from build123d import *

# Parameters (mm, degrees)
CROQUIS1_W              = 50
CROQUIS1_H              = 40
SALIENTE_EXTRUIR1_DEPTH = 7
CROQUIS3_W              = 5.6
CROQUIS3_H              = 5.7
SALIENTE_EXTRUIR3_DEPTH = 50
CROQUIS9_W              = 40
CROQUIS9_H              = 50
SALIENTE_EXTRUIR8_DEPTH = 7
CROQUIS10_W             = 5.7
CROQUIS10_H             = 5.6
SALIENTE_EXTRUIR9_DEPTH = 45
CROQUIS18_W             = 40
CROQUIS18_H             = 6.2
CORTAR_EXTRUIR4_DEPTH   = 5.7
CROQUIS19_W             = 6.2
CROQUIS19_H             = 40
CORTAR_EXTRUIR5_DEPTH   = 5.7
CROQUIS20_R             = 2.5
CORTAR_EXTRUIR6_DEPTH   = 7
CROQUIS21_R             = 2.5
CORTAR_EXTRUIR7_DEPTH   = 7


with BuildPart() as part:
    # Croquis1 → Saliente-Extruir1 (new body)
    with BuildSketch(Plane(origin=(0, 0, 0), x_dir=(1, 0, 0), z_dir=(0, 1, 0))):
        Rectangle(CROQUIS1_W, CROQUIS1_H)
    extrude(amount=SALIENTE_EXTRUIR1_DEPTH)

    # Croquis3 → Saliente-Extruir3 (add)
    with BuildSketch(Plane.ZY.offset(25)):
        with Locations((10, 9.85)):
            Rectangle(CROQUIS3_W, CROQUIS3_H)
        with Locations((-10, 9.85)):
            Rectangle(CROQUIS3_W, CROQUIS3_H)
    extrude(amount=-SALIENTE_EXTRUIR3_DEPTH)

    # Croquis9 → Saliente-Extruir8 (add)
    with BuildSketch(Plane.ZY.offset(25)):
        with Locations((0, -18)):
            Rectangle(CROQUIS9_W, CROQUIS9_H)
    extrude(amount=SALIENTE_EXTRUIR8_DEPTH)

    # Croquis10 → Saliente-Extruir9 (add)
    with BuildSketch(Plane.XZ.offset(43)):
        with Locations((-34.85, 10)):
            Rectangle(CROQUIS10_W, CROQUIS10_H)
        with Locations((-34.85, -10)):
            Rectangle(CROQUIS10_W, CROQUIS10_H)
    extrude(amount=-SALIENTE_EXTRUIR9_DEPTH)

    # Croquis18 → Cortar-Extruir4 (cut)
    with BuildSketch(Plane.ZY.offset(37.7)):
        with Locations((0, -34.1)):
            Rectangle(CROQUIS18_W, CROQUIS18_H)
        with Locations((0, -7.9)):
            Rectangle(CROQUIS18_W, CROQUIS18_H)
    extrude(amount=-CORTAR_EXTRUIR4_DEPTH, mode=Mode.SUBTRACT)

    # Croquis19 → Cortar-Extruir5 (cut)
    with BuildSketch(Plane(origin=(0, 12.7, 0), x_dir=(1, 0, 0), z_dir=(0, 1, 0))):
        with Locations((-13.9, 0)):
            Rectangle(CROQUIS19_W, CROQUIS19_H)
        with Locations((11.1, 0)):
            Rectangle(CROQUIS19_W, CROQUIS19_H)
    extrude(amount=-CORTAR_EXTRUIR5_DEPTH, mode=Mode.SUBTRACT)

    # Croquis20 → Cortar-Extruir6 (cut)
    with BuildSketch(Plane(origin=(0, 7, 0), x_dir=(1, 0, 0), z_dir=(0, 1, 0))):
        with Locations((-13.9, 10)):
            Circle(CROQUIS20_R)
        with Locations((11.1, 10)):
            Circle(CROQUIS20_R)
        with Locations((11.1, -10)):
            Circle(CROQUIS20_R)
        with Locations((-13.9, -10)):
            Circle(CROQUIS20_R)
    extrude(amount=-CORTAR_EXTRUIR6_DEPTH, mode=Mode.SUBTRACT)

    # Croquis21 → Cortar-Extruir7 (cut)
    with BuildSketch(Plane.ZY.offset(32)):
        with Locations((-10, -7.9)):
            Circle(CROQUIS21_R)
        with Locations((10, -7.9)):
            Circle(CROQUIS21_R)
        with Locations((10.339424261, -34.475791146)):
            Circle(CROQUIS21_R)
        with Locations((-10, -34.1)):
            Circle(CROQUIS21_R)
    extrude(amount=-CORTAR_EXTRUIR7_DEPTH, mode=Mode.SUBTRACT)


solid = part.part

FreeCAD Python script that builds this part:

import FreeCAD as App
import Part
import Sketcher

V = App.Vector
Q = App.Units.Quantity

doc = App.newDocument("Part")
body = doc.addObject("PartDesign::Body", "Body")

sketch1 = body.newObject("Sketcher::SketchObject", "Sketch")
sketch1.AttachmentSupport = (doc.getObject("XZ_Plane"), [""])
sketch1.MapMode = "FlatFace"
sketch1.addGeometry([
    Part.LineSegment(V(-25, -20, 0), V(-25, 20, 0)),
    Part.LineSegment(V(-25, 20, 0), V(25, 20, 0)),
    Part.LineSegment(V(25, 20, 0), V(25, -20, 0)),
    Part.LineSegment(V(25, -20, 0), V(-25, -20, 0)),
], False)
sketch1.addConstraint([
    Sketcher.Constraint("Coincident", 0, 2, 1, 1),
    Sketcher.Constraint("Coincident", 1, 2, 2, 1),
    Sketcher.Constraint("Coincident", 2, 2, 3, 1),
    Sketcher.Constraint("Coincident", 3, 2, 0, 1),
    Sketcher.Constraint("Vertical", 0),
    Sketcher.Constraint("Horizontal", 1),
    Sketcher.Constraint("Vertical", 2),
    Sketcher.Constraint("Horizontal", 3),
    Sketcher.Constraint("Symmetric", 0, 2, 2, 2, -1, 1),
    Sketcher.Constraint("DistanceX", 1, 1, 1, 2, Q("50 mm")),
    Sketcher.Constraint("DistanceY", 0, 1, 0, 2, Q("40 mm")),
])
pad1 = body.newObject("PartDesign::Pad", "Pad")
pad1.Profile = sketch1
pad1.Length = 7
pad1.Reversed = True

sketch2 = body.newObject("Sketcher::SketchObject", "Sketch001")
sketch2.AttachmentSupport = (doc.getObject("YZ_Plane"), [""])
sketch2.MapMode = "FlatFace"
sketch2.AttachmentOffset = App.Placement(V(0, 0, -25), App.Rotation())
sketch2.addGeometry([
    Part.LineSegment(V(13, 7, 0), V(7, 7, 0)),
    Part.LineSegment(V(7, 7, 0), V(7, 13, 0)),
    Part.LineSegment(V(7, 13, 0), V(13, 13, 0)),
    Part.LineSegment(V(13, 13, 0), V(13, 7, 0)),
    Part.LineSegment(V(13, -13, 0), V(7, -13, 0)),
    Part.LineSegment(V(7, -13, 0), V(7, -7, 0)),
    Part.LineSegment(V(7, -7, 0), V(13, -7, 0)),
    Part.LineSegment(V(13, -7, 0), V(13, -13, 0)),
], False)
sketch2.addConstraint([
    Sketcher.Constraint("Coincident", 0, 2, 1, 1),
    Sketcher.Constraint("Coincident", 1, 2, 2, 1),
    Sketcher.Constraint("Coincident", 2, 2, 3, 1),
    Sketcher.Constraint("Coincident", 3, 2, 0, 1),
    Sketcher.Constraint("Coincident", 4, 2, 5, 1),
    Sketcher.Constraint("Coincident", 5, 2, 6, 1),
    Sketcher.Constraint("Coincident", 6, 2, 7, 1),
    Sketcher.Constraint("Coincident", 7, 2, 4, 1),
    Sketcher.Constraint("Horizontal", 0),
    Sketcher.Constraint("Vertical", 1),
    Sketcher.Constraint("Horizontal", 2),
    Sketcher.Constraint("Vertical", 3),
    Sketcher.Constraint("Horizontal", 4),
    Sketcher.Constraint("Vertical", 5),
    Sketcher.Constraint("Horizontal", 6),
    Sketcher.Constraint("Vertical", 7),
    Sketcher.Constraint("Symmetric", 1, 2, 4, 2, -1),
    Sketcher.Constraint("Symmetric", 3, 2, 6, 2, -1),
    Sketcher.Constraint("DistanceX", 0, 2, 0, 1, Q("5.7 mm")),
    Sketcher.Constraint("DistanceY", 1, 1, 1, 2, Q("5.6 mm")),
    Sketcher.Constraint("DistanceX", -1, 1, 0, 2, Q("7 mm")),
    Sketcher.Constraint("DistanceY", 4, 2, 0, 2, Q("20 mm")),
])
pad2 = body.newObject("PartDesign::Pad", "Pad001")
pad2.Profile = sketch2
pad2.Length = 50

sketch3 = body.newObject("Sketcher::SketchObject", "Sketch002")
sketch3.AttachmentSupport = (doc.getObject("YZ_Plane"), [""])
sketch3.MapMode = "FlatFace"
sketch3.AttachmentOffset = App.Placement(V(0, 0, -25), App.Rotation())
sketch3.addGeometry([
    Part.LineSegment(V(7, -20, 0), V(-43, -20, 0)),
    Part.LineSegment(V(-43, -20, 0), V(-43, 20, 0)),
    Part.LineSegment(V(-43, 20, 0), V(7, 20, 0)),
    Part.LineSegment(V(7, 20, 0), V(7, -20, 0)),
], False)
sketch3.addConstraint([
    Sketcher.Constraint("Coincident", 0, 2, 1, 1),
    Sketcher.Constraint("Coincident", 1, 2, 2, 1),
    Sketcher.Constraint("Coincident", 2, 2, 3, 1),
    Sketcher.Constraint("Coincident", 3, 2, 0, 1),
    Sketcher.Constraint("Horizontal", 0),
    Sketcher.Constraint("Vertical", 1),
    Sketcher.Constraint("Horizontal", 2),
    Sketcher.Constraint("Vertical", 3),
    Sketcher.Constraint("DistanceX", 0, 2, 0, 1, Q("50 mm")),
    Sketcher.Constraint("DistanceY", 1, 1, 1, 2, Q("40 mm")),
    Sketcher.Constraint("DistanceX", 0, 2, -1, 1, Q("43 mm")),
    Sketcher.Constraint("DistanceY", 0, 2, -1, 1, Q("20 mm")),
])
pad3 = body.newObject("PartDesign::Pad", "Pad002")
pad3.Profile = sketch3
pad3.Length = 7
pad3.Reversed = True

sketch4 = body.newObject("Sketcher::SketchObject", "Sketch003")
sketch4.AttachmentSupport = (doc.getObject("XZ_Plane"), [""])
sketch4.MapMode = "FlatFace"
sketch4.AttachmentOffset = App.Placement(V(0, 0, 43), App.Rotation())
sketch4.addGeometry([
    Part.LineSegment(V(-38, 13, 0), V(-38, 7, 0)),
    Part.LineSegment(V(-38, 7, 0), V(-32, 7, 0)),
    Part.LineSegment(V(-32, 7, 0), V(-32, 13, 0)),
    Part.LineSegment(V(-32, 13, 0), V(-38, 13, 0)),
    Part.LineSegment(V(-38, -7, 0), V(-38, -13, 0)),
    Part.LineSegment(V(-38, -13, 0), V(-32, -13, 0)),
    Part.LineSegment(V(-32, -13, 0), V(-32, -7, 0)),
    Part.LineSegment(V(-32, -7, 0), V(-38, -7, 0)),
], False)
sketch4.addConstraint([
    Sketcher.Constraint("Coincident", 0, 2, 1, 1),
    Sketcher.Constraint("Coincident", 1, 2, 2, 1),
    Sketcher.Constraint("Coincident", 2, 2, 3, 1),
    Sketcher.Constraint("Coincident", 3, 2, 0, 1),
    Sketcher.Constraint("Coincident", 4, 2, 5, 1),
    Sketcher.Constraint("Coincident", 5, 2, 6, 1),
    Sketcher.Constraint("Coincident", 6, 2, 7, 1),
    Sketcher.Constraint("Coincident", 7, 2, 4, 1),
    Sketcher.Constraint("Vertical", 0),
    Sketcher.Constraint("Horizontal", 1),
    Sketcher.Constraint("Vertical", 2),
    Sketcher.Constraint("Horizontal", 3),
    Sketcher.Constraint("Vertical", 4),
    Sketcher.Constraint("Horizontal", 5),
    Sketcher.Constraint("Vertical", 6),
    Sketcher.Constraint("Horizontal", 7),
    Sketcher.Constraint("Symmetric", 3, 2, 4, 2, -1),
    Sketcher.Constraint("Symmetric", 1, 2, 6, 2, -1),
    Sketcher.Constraint("DistanceX", 1, 1, 1, 2, Q("5.7 mm")),
    Sketcher.Constraint("DistanceY", 0, 2, 0, 1, Q("5.6 mm")),
    Sketcher.Constraint("DistanceX", 1, 2, -1, 1, Q("32 mm")),
    Sketcher.Constraint("DistanceY", 4, 2, 0, 2, Q("20 mm")),
])
pad4 = body.newObject("PartDesign::Pad", "Pad003")
pad4.Profile = sketch4
pad4.Length = 45
pad4.Reversed = True

sketch5 = body.newObject("Sketcher::SketchObject", "Sketch004")
sketch5.AttachmentSupport = (doc.getObject("YZ_Plane"), [""])
sketch5.MapMode = "FlatFace"
sketch5.AttachmentOffset = App.Placement(V(0, 0, -37.7), App.Rotation())
sketch5.addGeometry([
    Part.LineSegment(V(-31, -20, 0), V(-37, -20, 0)),
    Part.LineSegment(V(-37, -20, 0), V(-37, 20, 0)),
    Part.LineSegment(V(-37, 20, 0), V(-31, 20, 0)),
    Part.LineSegment(V(-31, 20, 0), V(-31, -20, 0)),
    Part.LineSegment(V(-5, -20, 0), V(-11, -20, 0)),
    Part.LineSegment(V(-11, -20, 0), V(-11, 20, 0)),
    Part.LineSegment(V(-11, 20, 0), V(-5, 20, 0)),
    Part.LineSegment(V(-5, 20, 0), V(-5, -20, 0)),
], False)
sketch5.addConstraint([
    Sketcher.Constraint("Coincident", 0, 2, 1, 1),
    Sketcher.Constraint("Coincident", 1, 2, 2, 1),
    Sketcher.Constraint("Coincident", 2, 2, 3, 1),
    Sketcher.Constraint("Coincident", 3, 2, 0, 1),
    Sketcher.Constraint("Coincident", 4, 2, 5, 1),
    Sketcher.Constraint("Coincident", 5, 2, 6, 1),
    Sketcher.Constraint("Coincident", 6, 2, 7, 1),
    Sketcher.Constraint("Coincident", 7, 2, 4, 1),
    Sketcher.Constraint("Horizontal", 0),
    Sketcher.Constraint("Vertical", 1),
    Sketcher.Constraint("Horizontal", 2),
    Sketcher.Constraint("Vertical", 3),
    Sketcher.Constraint("Horizontal", 4),
    Sketcher.Constraint("Vertical", 5),
    Sketcher.Constraint("Horizontal", 6),
    Sketcher.Constraint("Vertical", 7),
    Sketcher.Constraint("Horizontal", 3, 2, 4, 2),
    Sketcher.Constraint("Horizontal", 2, 2, 5, 2),
    Sketcher.Constraint("Equal", 2, 4),
    Sketcher.Constraint("DistanceY", 1, 1, 1, 2, Q("40 mm")),
    Sketcher.Constraint("DistanceX", 0, 2, 0, 1, Q("6.2 mm")),
    Sketcher.Constraint("DistanceY", 0, 2, -1, 1, Q("20 mm")),
    Sketcher.Constraint("DistanceX", 2, 2, -1, 1, Q("31 mm")),
    Sketcher.Constraint("DistanceX", 4, 2, -1, 1, Q("11 mm")),
])
pocket1 = body.newObject("PartDesign::Pocket", "Pocket")
pocket1.Profile = sketch5
pocket1.Length = 5.7
pocket1.Reversed = True

sketch6 = body.newObject("Sketcher::SketchObject", "Sketch005")
sketch6.AttachmentSupport = (doc.getObject("XZ_Plane"), [""])
sketch6.MapMode = "FlatFace"
sketch6.AttachmentOffset = App.Placement(V(0, 0, -12.7), App.Rotation())
sketch6.addGeometry([
    Part.LineSegment(V(-17, -20, 0), V(-17, 20, 0)),
    Part.LineSegment(V(-17, 20, 0), V(-11, 20, 0)),
    Part.LineSegment(V(-11, 20, 0), V(-11, -20, 0)),
    Part.LineSegment(V(-11, -20, 0), V(-17, -20, 0)),
    Part.LineSegment(V(8, -20, 0), V(8, 20, 0)),
    Part.LineSegment(V(8, 20, 0), V(14, 20, 0)),
    Part.LineSegment(V(14, 20, 0), V(14, -20, 0)),
    Part.LineSegment(V(14, -20, 0), V(8, -20, 0)),
], False)
sketch6.addConstraint([
    Sketcher.Constraint("Coincident", 0, 2, 1, 1),
    Sketcher.Constraint("Coincident", 1, 2, 2, 1),
    Sketcher.Constraint("Coincident", 2, 2, 3, 1),
    Sketcher.Constraint("Coincident", 3, 2, 0, 1),
    Sketcher.Constraint("Coincident", 4, 2, 5, 1),
    Sketcher.Constraint("Coincident", 5, 2, 6, 1),
    Sketcher.Constraint("Coincident", 6, 2, 7, 1),
    Sketcher.Constraint("Coincident", 7, 2, 4, 1),
    Sketcher.Constraint("Vertical", 0),
    Sketcher.Constraint("Horizontal", 1),
    Sketcher.Constraint("Vertical", 2),
    Sketcher.Constraint("Horizontal", 3),
    Sketcher.Constraint("Vertical", 4),
    Sketcher.Constraint("Horizontal", 5),
    Sketcher.Constraint("Vertical", 6),
    Sketcher.Constraint("Horizontal", 7),
    Sketcher.Constraint("Horizontal", 1, 2, 4, 2),
    Sketcher.Constraint("Horizontal", 3, 2, 6, 2),
    Sketcher.Constraint("Equal", 3, 5),
    Sketcher.Constraint("DistanceY", 0, 1, 0, 2, Q("40 mm")),
    Sketcher.Constraint("DistanceX", 1, 1, 1, 2, Q("6.2 mm")),
    Sketcher.Constraint("DistanceX", 0, 2, -1, 1, Q("17 mm")),
    Sketcher.Constraint("DistanceY", -1, 1, 0, 2, Q("20 mm")),
    Sketcher.Constraint("DistanceX", -1, 1, 4, 2, Q("8 mm")),
])
pocket2 = body.newObject("PartDesign::Pocket", "Pocket001")
pocket2.Profile = sketch6
pocket2.Length = 5.7
pocket2.Reversed = True

sketch7 = body.newObject("Sketcher::SketchObject", "Sketch006")
sketch7.AttachmentSupport = (doc.getObject("XZ_Plane"), [""])
sketch7.MapMode = "FlatFace"
sketch7.AttachmentOffset = App.Placement(V(0, 0, -7), App.Rotation())
sketch7.addGeometry([
    Part.Circle(V(-13.9, -10, 0), V(0, 0, 1), 2.5),
    Part.Circle(V(11.1, -10, 0), V(0, 0, 1), 2.5),
    Part.Circle(V(11.1, 10, 0), V(0, 0, 1), 2.5),
    Part.Circle(V(-13.9, 10, 0), V(0, 0, 1), 2.5),
], False)
sketch7.addConstraint([
    Sketcher.Constraint("Equal", 0, 1),
    Sketcher.Constraint("Equal", 1, 2),
    Sketcher.Constraint("Equal", 2, 3),
    Sketcher.Constraint("Symmetric", 1, 3, 2, 3, -1),
    Sketcher.Constraint("Symmetric", 0, 3, 3, 3, -1),
    Sketcher.Constraint("Horizontal", 0, 3, 1, 3),
    Sketcher.Constraint("Diameter", 0, Q("5 mm")),
    Sketcher.Constraint("DistanceY", 0, 3, -1, 1, Q("10 mm")),
    Sketcher.Constraint("DistanceX", 0, 3, 1, 3, Q("25 mm")),
    Sketcher.Constraint("DistanceX", 0, 3, -1, 1, Q("13.9 mm")),
])
pocket3 = body.newObject("PartDesign::Pocket", "Pocket002")
pocket3.Profile = sketch7
pocket3.Length = 7
pocket3.Reversed = True

sketch8 = body.newObject("Sketcher::SketchObject", "Sketch007")
sketch8.AttachmentSupport = (doc.getObject("YZ_Plane"), [""])
sketch8.MapMode = "FlatFace"
sketch8.AttachmentOffset = App.Placement(V(0, 0, -32), App.Rotation())
sketch8.addGeometry([
    Part.Circle(V(-7.9, -10, 0), V(0, 0, 1), 2.5),
    Part.Circle(V(-7.9, 10, 0), V(0, 0, 1), 2.5),
    Part.Circle(V(-34.5, 10.3, 0), V(0, 0, 1), 2.5),
    Part.Circle(V(-34.1, -10, 0), V(0, 0, 1), 2.5),
], False)
sketch8.addConstraint([
    Sketcher.Constraint("Equal", 0, 1),
    Sketcher.Constraint("Equal", 1, 2),
    Sketcher.Constraint("Equal", 2, 3),
    Sketcher.Constraint("Symmetric", 0, 3, 1, 3, -1),
    Sketcher.Constraint("Horizontal", 0, 3, 3, 3),
    Sketcher.Constraint("Diameter", 0, Q("5 mm")),
    Sketcher.Constraint("DistanceY", 0, 3, -1, 1, Q("10 mm")),
    Sketcher.Constraint("DistanceX", 0, 3, -1, 1, Q("7.9 mm")),
    Sketcher.Constraint("DistanceX", 3, 3, -1, 1, Q("34.1 mm")),
    Sketcher.Constraint("DistanceX", 2, 3, -1, 1, Q("34.475791 mm")),
    Sketcher.Constraint("DistanceY", -1, 1, 2, 3, Q("10.339424 mm")),
])
pocket4 = body.newObject("PartDesign::Pocket", "Pocket003")
pocket4.Profile = sketch8
pocket4.Length = 7
pocket4.Reversed = True

doc.recompute()
